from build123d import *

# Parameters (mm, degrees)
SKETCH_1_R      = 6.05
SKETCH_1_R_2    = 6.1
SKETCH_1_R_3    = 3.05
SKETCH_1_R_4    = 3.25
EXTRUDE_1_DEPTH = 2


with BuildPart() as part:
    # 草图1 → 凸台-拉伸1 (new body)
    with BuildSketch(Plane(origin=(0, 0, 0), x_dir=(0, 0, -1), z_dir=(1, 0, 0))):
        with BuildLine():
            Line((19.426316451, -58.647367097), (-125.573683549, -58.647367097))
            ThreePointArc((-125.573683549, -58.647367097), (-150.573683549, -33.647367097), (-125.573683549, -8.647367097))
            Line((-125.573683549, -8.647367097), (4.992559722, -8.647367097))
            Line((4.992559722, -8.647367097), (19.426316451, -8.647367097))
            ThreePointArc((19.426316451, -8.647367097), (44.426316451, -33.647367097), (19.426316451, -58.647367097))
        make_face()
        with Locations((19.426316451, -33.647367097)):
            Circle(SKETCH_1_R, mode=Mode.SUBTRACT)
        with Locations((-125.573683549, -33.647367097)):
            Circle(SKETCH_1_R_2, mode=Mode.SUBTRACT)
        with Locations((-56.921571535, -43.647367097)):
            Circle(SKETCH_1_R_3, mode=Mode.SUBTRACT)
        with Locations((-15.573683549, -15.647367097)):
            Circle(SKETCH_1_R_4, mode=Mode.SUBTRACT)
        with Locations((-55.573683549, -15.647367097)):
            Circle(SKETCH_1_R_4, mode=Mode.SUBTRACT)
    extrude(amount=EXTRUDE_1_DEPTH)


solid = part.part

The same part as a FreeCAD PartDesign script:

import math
import FreeCAD as App
import Part
import Sketcher

doc = App.newDocument("Part")
body = doc.addObject("PartDesign::Body", "Body")

sketch1 = doc.addObject("Sketcher::SketchObject", "Sketch")
body.addObject(sketch1)
sketch1.AttachmentSupport = (doc.YZ_Plane, [""])
sketch1.MapMode = "FlatFace"
sketch1.addGeometry(Part.LineSegment(App.Vector(-58.647367, 125.573684, 0), App.Vector(-58.647367, -19.426316, 0)), False)
sketch1.addGeometry(Part.ArcOfCircle(Part.Circle(App.Vector(-33.647367, -19.426316, 0), App.Vector(0, 0, 1), 25), math.radians(180), math.radians(360)), False)
sketch1.addGeometry(Part.LineSegment(App.Vector(-8.647367, -19.426316, 0), App.Vector(-8.647367, 125.573684, 0)), False)
sketch1.addGeometry(Part.ArcOfCircle(Part.Circle(App.Vector(-33.647367, 125.573684, 0), App.Vector(0, 0, 1), 25), math.radians(0), math.radians(180)), False)
sketch1.addGeometry(Part.Circle(App.Vector(-33.647367, -19.426316, 0), App.Vector(0, 0, 1), 6.05), False)
sketch1.addGeometry(Part.Circle(App.Vector(-43.647367, 56.921572, 0), App.Vector(0, 0, 1), 3.05), False)
sketch1.addGeometry(Part.Circle(App.Vector(-33.647367, 125.573684, 0), App.Vector(0, 0, 1), 6.1), False)
sketch1.addGeometry(Part.Circle(App.Vector(-15.647367, 15.573684, 0), App.Vector(0, 0, 1), 3.25), False)
sketch1.addGeometry(Part.Circle(App.Vector(-15.647367, 55.573684, 0), App.Vector(0, 0, 1), 3.25), False)
sketch1.addConstraint(Sketcher.Constraint("Tangent", 0, 2, 1, 1))
sketch1.addConstraint(Sketcher.Constraint("Tangent", 1, 2, 2, 1))
sketch1.addConstraint(Sketcher.Constraint("Tangent", 2, 2, 3, 1))
sketch1.addConstraint(Sketcher.Constraint("Tangent", 3, 2, 0, 1))
sketch1.addConstraint(Sketcher.Constraint("Vertical", 0))
sketch1.addConstraint(Sketcher.Constraint("Vertical", 2))
sketch1.addConstraint(Sketcher.Constraint("Coincident", 4, 3, 1, 3))
sketch1.addConstraint(Sketcher.Constraint("Coincident", 6, 3, 3, 3))
sketch1.addConstraint(Sketcher.Constraint("Equal", 7, 8))
sketch1.addConstraint(Sketcher.Constraint("Vertical", 7, 3, 8, 3))
sketch1.addConstraint(Sketcher.Constraint("Radius", 1, 25.0))
sketch1.addConstraint(Sketcher.Constraint("Diameter", 4, 12.1))
sketch1.addConstraint(Sketcher.Constraint("Diameter", 5, 6.1))
sketch1.addConstraint(Sketcher.Constraint("Diameter", 6, 12.2))
sketch1.addConstraint(Sketcher.Constraint("Diameter", 7, 6.5))
sketch1.addConstraint(Sketcher.Constraint("DistanceY", 0, 2, 0, 1, 145.0))
sketch1.addConstraint(Sketcher.Constraint("DistanceX", 5, 3, 3, 3, 10.0))
sketch1.addConstraint(Sketcher.Constraint("DistanceX", 1, 3, 7, 3, 18.0))
sketch1.addConstraint(Sketcher.Constraint("DistanceY", 1, 3, 7, 3, 35.0))
sketch1.addConstraint(Sketcher.Constraint("DistanceY", 7, 3, 8, 3, 40.0))
sketch1.addConstraint(Sketcher.Constraint("DistanceY", -1, 1, 5, 3, 56.921572))
sketch1.addConstraint(Sketcher.Constraint("DistanceX", 1, 3, -1, 1, 33.647367))
sketch1.addConstraint(Sketcher.Constraint("DistanceY", 1, 3, -1, 1, 19.426316))
pad1 = doc.addObject("PartDesign::Pad", "Pad")
body.addObject(pad1)
pad1.Profile = sketch1
pad1.Length = 2

doc.recompute()
